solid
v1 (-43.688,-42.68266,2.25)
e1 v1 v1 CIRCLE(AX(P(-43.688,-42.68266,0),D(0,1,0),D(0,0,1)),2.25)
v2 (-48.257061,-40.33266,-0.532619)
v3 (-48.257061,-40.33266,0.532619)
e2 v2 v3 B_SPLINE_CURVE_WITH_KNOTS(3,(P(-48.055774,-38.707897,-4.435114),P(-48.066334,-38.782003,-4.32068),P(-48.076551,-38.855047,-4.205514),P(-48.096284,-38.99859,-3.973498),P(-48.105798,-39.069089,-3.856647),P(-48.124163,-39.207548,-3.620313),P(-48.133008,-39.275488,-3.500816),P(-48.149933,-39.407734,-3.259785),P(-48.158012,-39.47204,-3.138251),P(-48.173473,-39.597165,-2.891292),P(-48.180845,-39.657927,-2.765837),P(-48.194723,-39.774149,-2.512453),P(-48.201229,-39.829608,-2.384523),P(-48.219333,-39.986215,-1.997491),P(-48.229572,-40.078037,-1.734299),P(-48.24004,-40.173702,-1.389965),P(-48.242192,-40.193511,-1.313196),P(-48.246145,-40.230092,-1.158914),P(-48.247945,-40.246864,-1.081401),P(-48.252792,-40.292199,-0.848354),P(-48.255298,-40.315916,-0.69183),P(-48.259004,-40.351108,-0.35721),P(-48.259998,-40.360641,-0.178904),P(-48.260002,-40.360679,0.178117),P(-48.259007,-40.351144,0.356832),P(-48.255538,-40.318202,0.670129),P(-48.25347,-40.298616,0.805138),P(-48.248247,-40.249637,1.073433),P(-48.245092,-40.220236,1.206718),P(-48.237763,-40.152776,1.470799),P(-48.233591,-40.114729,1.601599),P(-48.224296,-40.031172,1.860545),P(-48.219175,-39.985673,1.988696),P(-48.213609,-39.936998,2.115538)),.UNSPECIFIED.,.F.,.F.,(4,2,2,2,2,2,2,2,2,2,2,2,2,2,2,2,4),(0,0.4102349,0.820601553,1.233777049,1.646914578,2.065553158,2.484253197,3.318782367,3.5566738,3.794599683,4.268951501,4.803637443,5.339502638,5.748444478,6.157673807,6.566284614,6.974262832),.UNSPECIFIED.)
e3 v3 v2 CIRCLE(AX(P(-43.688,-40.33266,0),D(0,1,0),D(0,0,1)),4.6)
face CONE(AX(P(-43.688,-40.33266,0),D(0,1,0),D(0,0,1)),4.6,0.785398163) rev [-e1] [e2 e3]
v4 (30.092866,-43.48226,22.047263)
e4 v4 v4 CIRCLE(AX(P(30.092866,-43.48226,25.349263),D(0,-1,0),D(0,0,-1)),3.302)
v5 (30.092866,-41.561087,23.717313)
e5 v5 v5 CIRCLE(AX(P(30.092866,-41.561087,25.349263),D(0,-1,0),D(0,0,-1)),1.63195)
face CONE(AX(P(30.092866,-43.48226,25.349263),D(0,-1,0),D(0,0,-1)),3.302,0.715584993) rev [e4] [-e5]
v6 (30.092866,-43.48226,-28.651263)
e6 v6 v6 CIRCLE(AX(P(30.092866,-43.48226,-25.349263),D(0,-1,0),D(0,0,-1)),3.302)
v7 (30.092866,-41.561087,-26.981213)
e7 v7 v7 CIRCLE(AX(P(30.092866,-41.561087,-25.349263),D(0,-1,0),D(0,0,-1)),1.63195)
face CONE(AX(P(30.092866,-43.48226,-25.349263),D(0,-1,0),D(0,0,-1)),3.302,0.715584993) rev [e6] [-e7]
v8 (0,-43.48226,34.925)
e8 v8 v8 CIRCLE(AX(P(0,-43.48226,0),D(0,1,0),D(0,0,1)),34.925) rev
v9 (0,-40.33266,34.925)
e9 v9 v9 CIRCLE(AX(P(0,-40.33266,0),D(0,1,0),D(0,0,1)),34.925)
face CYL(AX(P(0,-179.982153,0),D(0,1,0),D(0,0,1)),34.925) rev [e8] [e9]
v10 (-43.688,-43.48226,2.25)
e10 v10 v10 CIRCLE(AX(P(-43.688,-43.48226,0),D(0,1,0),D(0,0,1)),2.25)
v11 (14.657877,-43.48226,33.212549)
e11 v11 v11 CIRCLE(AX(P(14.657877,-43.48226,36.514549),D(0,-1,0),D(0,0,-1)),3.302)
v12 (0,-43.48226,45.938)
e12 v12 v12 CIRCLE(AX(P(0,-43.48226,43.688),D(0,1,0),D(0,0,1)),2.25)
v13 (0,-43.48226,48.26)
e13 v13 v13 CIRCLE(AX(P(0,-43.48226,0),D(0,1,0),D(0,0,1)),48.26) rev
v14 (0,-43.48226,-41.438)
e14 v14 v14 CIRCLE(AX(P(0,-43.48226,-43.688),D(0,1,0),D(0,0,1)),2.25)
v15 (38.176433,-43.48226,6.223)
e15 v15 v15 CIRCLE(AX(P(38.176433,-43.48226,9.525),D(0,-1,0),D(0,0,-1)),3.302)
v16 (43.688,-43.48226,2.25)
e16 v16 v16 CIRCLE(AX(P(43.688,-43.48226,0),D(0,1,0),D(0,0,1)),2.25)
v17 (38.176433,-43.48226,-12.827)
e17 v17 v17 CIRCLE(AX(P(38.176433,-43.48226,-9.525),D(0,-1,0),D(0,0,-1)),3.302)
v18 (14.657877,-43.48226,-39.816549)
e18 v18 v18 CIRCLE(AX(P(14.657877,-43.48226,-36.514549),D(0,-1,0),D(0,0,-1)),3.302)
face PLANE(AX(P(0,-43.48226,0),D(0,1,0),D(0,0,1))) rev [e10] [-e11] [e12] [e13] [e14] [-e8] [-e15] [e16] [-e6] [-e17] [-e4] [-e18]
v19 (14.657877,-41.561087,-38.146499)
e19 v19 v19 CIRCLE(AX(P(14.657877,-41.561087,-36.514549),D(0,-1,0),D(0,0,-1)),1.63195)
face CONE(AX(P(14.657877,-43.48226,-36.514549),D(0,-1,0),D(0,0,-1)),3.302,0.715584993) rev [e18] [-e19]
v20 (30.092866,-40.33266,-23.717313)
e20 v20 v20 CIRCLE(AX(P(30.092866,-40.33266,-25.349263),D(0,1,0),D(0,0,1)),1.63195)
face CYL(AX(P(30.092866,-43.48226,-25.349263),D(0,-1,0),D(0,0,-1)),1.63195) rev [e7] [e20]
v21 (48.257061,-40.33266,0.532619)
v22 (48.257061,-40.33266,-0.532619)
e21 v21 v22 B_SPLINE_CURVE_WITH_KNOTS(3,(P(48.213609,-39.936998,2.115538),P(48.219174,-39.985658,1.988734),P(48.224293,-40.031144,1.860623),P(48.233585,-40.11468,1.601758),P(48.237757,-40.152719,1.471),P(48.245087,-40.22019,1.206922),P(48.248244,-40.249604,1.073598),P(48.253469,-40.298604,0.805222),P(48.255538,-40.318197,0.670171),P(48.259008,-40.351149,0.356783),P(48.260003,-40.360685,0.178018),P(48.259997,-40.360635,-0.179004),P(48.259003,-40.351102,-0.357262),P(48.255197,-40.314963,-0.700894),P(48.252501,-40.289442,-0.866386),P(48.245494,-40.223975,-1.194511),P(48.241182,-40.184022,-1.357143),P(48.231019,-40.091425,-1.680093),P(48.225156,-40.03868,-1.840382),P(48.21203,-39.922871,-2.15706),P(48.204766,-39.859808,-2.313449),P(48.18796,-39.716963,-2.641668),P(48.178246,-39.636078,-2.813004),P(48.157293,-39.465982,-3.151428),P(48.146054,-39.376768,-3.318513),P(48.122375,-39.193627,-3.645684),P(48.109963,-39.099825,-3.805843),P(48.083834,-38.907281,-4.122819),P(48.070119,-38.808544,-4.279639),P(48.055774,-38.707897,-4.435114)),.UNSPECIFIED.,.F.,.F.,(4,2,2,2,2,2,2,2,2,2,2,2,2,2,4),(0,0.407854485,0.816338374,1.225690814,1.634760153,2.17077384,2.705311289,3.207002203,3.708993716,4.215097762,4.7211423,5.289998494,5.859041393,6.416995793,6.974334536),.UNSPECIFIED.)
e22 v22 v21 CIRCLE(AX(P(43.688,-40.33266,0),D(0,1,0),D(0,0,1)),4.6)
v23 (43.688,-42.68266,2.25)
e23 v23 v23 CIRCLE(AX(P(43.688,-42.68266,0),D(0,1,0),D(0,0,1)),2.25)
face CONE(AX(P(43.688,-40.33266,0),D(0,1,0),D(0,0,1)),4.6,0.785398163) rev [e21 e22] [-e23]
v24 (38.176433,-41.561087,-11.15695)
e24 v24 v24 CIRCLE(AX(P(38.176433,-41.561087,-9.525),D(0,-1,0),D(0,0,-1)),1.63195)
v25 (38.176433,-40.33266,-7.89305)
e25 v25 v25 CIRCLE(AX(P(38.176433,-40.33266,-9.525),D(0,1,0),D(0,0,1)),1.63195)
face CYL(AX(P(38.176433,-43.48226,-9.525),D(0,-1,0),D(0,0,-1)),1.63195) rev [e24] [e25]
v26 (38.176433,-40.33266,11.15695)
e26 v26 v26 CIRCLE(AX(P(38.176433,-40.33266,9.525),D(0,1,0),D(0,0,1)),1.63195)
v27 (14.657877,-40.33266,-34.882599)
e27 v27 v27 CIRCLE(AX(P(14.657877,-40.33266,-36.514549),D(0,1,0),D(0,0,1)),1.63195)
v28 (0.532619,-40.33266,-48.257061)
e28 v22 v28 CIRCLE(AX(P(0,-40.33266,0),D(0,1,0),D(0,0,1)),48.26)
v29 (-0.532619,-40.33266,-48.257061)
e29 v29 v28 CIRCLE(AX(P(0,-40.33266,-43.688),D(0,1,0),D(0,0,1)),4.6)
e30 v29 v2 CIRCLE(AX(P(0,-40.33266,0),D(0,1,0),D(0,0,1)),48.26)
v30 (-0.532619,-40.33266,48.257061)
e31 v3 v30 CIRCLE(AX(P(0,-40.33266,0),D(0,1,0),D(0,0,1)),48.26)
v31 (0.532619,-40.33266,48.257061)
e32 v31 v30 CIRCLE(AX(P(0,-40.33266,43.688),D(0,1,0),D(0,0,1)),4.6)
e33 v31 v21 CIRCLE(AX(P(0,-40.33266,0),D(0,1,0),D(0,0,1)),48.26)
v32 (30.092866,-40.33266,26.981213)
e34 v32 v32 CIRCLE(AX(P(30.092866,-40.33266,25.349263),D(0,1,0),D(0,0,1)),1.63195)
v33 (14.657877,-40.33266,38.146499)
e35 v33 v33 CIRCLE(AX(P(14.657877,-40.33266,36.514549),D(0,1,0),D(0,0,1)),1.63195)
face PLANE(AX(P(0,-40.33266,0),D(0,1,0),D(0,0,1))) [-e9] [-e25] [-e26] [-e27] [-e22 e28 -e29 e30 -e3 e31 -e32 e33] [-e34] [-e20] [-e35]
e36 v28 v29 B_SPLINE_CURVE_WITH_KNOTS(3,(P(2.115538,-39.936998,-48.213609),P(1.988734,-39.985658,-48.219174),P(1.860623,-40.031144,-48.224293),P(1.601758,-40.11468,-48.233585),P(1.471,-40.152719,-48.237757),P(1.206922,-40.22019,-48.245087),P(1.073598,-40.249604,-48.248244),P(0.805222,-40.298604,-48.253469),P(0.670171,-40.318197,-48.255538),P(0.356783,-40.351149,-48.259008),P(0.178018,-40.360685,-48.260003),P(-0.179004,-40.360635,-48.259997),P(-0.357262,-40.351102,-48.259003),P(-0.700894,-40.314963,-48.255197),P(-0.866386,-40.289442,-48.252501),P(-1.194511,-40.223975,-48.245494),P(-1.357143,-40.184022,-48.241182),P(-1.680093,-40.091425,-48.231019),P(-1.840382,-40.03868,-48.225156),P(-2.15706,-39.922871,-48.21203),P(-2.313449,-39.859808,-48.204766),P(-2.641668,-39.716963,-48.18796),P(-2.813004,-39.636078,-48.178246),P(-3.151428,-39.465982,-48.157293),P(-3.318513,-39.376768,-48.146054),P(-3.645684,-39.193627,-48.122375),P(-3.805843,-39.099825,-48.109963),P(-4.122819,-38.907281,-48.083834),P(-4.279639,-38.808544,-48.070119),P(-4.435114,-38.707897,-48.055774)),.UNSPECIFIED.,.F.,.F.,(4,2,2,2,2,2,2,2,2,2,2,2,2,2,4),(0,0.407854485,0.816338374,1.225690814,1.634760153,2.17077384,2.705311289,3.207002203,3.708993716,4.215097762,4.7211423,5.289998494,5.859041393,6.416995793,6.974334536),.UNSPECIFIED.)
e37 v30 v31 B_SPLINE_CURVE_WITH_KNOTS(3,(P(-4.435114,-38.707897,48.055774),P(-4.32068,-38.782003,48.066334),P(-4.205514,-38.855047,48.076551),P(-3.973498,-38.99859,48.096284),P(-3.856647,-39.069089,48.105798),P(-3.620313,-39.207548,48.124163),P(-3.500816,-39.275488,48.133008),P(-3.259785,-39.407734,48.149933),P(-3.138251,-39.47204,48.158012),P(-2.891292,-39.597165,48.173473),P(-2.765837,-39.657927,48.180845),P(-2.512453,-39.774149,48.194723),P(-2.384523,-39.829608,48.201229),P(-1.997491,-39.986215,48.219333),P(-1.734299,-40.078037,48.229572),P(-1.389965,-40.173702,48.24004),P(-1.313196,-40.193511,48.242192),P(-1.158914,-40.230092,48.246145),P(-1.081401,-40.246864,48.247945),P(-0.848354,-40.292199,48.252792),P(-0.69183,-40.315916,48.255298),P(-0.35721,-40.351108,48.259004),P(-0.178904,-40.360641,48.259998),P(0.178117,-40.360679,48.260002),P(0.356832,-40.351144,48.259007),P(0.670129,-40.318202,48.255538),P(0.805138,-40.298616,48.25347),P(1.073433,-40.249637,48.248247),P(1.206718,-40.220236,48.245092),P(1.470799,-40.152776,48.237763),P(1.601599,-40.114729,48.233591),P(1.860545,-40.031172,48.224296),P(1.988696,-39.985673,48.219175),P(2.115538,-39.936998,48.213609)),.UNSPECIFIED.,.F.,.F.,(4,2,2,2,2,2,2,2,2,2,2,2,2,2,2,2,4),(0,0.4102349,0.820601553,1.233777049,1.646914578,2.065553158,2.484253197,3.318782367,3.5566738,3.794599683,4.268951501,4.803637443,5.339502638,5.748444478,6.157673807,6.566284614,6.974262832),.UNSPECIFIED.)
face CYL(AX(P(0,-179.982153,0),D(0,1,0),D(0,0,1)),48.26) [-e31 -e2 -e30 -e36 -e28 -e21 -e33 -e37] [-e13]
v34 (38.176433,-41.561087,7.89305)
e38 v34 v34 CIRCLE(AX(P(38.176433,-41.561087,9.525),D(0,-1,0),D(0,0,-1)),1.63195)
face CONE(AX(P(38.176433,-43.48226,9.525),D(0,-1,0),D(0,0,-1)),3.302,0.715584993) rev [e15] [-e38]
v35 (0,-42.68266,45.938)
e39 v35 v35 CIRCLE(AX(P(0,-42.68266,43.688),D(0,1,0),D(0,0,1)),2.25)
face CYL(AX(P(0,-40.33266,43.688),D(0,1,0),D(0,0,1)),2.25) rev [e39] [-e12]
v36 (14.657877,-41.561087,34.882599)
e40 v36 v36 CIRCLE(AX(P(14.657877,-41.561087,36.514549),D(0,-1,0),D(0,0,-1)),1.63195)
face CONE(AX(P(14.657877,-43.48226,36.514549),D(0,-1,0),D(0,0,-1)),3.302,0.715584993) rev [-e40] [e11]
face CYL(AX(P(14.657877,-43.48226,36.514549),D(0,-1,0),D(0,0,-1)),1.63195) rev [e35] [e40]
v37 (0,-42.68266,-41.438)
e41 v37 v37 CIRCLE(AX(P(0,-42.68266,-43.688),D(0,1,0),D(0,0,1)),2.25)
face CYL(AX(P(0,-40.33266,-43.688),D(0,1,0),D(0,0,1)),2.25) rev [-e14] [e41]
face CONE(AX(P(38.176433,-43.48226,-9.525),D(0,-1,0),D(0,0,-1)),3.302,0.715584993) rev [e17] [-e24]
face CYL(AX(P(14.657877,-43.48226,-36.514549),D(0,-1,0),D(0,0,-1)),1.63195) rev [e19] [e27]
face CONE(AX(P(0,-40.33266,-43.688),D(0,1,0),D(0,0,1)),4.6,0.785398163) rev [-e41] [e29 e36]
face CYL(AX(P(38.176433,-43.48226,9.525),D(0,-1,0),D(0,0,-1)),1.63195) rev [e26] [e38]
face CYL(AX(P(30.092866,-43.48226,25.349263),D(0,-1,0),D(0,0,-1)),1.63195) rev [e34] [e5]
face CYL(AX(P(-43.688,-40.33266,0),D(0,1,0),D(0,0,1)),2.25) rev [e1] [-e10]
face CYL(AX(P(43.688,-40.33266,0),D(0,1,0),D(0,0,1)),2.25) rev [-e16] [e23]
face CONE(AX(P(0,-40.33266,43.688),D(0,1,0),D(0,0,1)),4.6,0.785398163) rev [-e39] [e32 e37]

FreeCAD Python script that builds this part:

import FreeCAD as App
import Part
import Sketcher
Q = App.Units.Quantity

doc = App.newDocument("Part")
body = doc.addObject("PartDesign::Body", "Body")

# Sketch on XZ plane
sketch1 = body.newObject("Sketcher::SketchObject", "Sketch")
sketch1.AttachmentSupport = (doc.getObject("XZ_Plane"), [""])
sketch1.MapMode = "FlatFace"
sketch1.AttachmentOffset = App.Placement(App.Vector(0, 0, 1.5879 * 25.4), App.Rotation())
sketch1.addGeometry([
    Part.Circle(App.Vector(0, 0, 0), App.Vector(0, 0, 1), 48),
    Part.Circle(App.Vector(0, 0, 0), App.Vector(0, 0, 1), 35),
], False)
sketch1.addConstraint([
    Sketcher.Constraint("Coincident", 0, 3, -1, 1),
    Sketcher.Constraint("Coincident", 1, 3, -1, 1),
    Sketcher.Constraint("Diameter", 0, Q("3.8 in")),
    Sketcher.Constraint("Diameter", 1, Q("2.75 in")),
])
pad1 = body.newObject("PartDesign::Pad", "Pad")
pad1.Profile = sketch1
pad1.Length = Q("0.124 in")

# Sketch on YZ plane
sketch2 = body.newObject("Sketcher::SketchObject", "Sketch001")
sketch2.AttachmentSupport = (doc.getObject("YZ_Plane"), [""])
sketch2.MapMode = "FlatFace"
sketch2.addGeometry([
    Part.LineSegment(App.Vector(-43.5, 43.7, 0), App.Vector(-40.3, 43.7, 0)),  # 0
    Part.LineSegment(App.Vector(-40.3, 43.7, 0), App.Vector(-40.3, 48.3, 0)),  # 1
    Part.LineSegment(App.Vector(-40.3, 48.3, 0), App.Vector(-42.7, 45.9, 0)),  # 2
    Part.LineSegment(App.Vector(-42.7, 45.9, 0), App.Vector(-43.5, 45.9, 0)),  # 3
    Part.LineSegment(App.Vector(-43.5, 45.9, 0), App.Vector(-43.5, 43.7, 0)),  # 4
], False)
sketch2.addGeometry(Part.LineSegment(App.Vector(-40.3, 43.7, 0), App.Vector(-43.5, 43.7, 0)), True)  # axis
sketch2.addConstraint([
    Sketcher.Constraint("Coincident", 0, 2, 1, 1),
    Sketcher.Constraint("Coincident", 1, 2, 2, 1),
    Sketcher.Constraint("Coincident", 2, 2, 3, 1),
    Sketcher.Constraint("Coincident", 3, 2, 4, 1),
    Sketcher.Constraint("Coincident", 4, 2, 0, 1),
    Sketcher.Constraint("Horizontal", 0),
    Sketcher.Constraint("Vertical", 1),
    Sketcher.Constraint("Horizontal", 3),
    Sketcher.Constraint("Vertical", 4),
    Sketcher.Constraint("Horizontal", 5),
    Sketcher.Constraint("Coincident", 5, 1, 0, 2),
    Sketcher.Constraint("Vertical", 3, 2, 5, 2),
    Sketcher.Constraint("Angle", 2, Q("-135 deg")),
    Sketcher.Constraint("DistanceX", 0, 1, 0, 2, Q("0.124 in")),
    Sketcher.Constraint("DistanceY", -1, 1, 0, 2, Q("1.72 in")),
    Sketcher.Constraint("DistanceX", 3, 2, 3, 1, 0.7996),
    Sketcher.Constraint("DistanceY", 1, 1, 1, 2, 4.6),
    Sketcher.Constraint("DistanceX", 0, 2, -1, 1, Q("1.5879 in")),
])
groove = body.newObject("PartDesign::Groove", "Groove")
groove.Profile = sketch2
groove.ReferenceAxis = (sketch2, ["Axis0"])
groove.Angle = 360
doc.recompute()

datumline = body.newObject("PartDesign::Line", "DatumLine")
datumline.Placement = App.Placement(App.Vector(0, 0, 0), App.Rotation(App.Vector(0, 0, 1), App.Vector(0.707106781, 0, -0.707106781)))
linearpattern = body.newObject("PartDesign::LinearPattern", "LinearPattern")
linearpattern.Originals = [groove]
linearpattern.Direction = (datumline, [""])
linearpattern.Mode = "offset"
linearpattern.Offset = 61.784162
linearpattern.Occurrences = 2
body.Tip = linearpattern
doc.recompute()

linearpattern2 = body.newObject("PartDesign::LinearPattern", "LinearPattern001")
linearpattern2.Originals = [groove]
linearpattern2.Direction = (doc.getObject("Z_Axis"), [""])
linearpattern2.Mode = "offset"
linearpattern2.Offset = Q("3.44 in")
linearpattern2.Occurrences = 2
linearpattern2.Reversed = True
body.Tip = linearpattern2
doc.recompute()

datumline2 = body.newObject("PartDesign::Line", "DatumLine001")
datumline2.Placement = App.Placement(App.Vector(0, 0, 0), App.Rotation(App.Vector(0, 0, 1), App.Vector(-0.707106781, 0, -0.707106781)))
linearpattern3 = body.newObject("PartDesign::LinearPattern", "LinearPattern002")
linearpattern3.Originals = [groove]
linearpattern3.Direction = (datumline2, [""])
linearpattern3.Mode = "offset"
linearpattern3.Offset = 61.784162
linearpattern3.Occurrences = 2
body.Tip = linearpattern3

# Sketch on YZ plane
sketch3 = body.newObject("Sketcher::SketchObject", "Sketch002")
sketch3.AttachmentSupport = (doc.getObject("YZ_Plane"), [""])
sketch3.MapMode = "FlatFace"
sketch3.AttachmentOffset = App.Placement(App.Vector(0, 0, 14.657877), App.Rotation())
sketch3.addGeometry([
    Part.LineSegment(App.Vector(-40.3, 36.5, 0), App.Vector(-43.5, 36.5, 0)),  # 0
    Part.LineSegment(App.Vector(-43.5, 36.5, 0), App.Vector(-43.5, 33.2, 0)),  # 1
    Part.LineSegment(App.Vector(-43.5, 33.2, 0), App.Vector(-41.6, 34.9, 0)),  # 2
    Part.LineSegment(App.Vector(-41.6, 34.9, 0), App.Vector(-40.3, 34.9, 0)),  # 3
    Part.LineSegment(App.Vector(-40.3, 34.9, 0), App.Vector(-40.3, 36.5, 0)),  # 4
], False)
sketch3.addGeometry(Part.LineSegment(App.Vector(-43.5, 36.5, 0), App.Vector(-40.3, 36.5, 0)), True)  # axis
sketch3.addConstraint([
    Sketcher.Constraint("Coincident", 0, 2, 1, 1),
    Sketcher.Constraint("Coincident", 1, 2, 2, 1),
    Sketcher.Constraint("Coincident", 2, 2, 3, 1),
    Sketcher.Constraint("Coincident", 3, 2, 4, 1),
    Sketcher.Constraint("Coincident", 4, 2, 0, 1),
    Sketcher.Constraint("Horizontal", 0),
    Sketcher.Constraint("Vertical", 1),
    Sketcher.Constraint("Horizontal", 3),
    Sketcher.Constraint("Vertical", 4),
    Sketcher.Constraint("Horizontal", 5),
    Sketcher.Constraint("Coincident", 5, 1, 0, 2),
    Sketcher.Constraint("Vertical", 3, 2, 5, 2),
    Sketcher.Constraint("Angle", 2, Q("41 deg")),
    Sketcher.Constraint("DistanceY", 1, 2, 1, 1, Q("0.13 in")),
    Sketcher.Constraint("DistanceX", 0, 2, 0, 1, Q("0.124 in")),
    Sketcher.Constraint("DistanceX", 0, 2, -1, 1, Q("1.7119 in")),
    Sketcher.Constraint("DistanceY", 4, 1, 4, 2, 1.63195),
    Sketcher.Constraint("DistanceY", -1, 1, 2, 2, 34.882599),
])
groove2 = body.newObject("PartDesign::Groove", "Groove001")
groove2.Profile = sketch3
groove2.ReferenceAxis = (sketch3, ["Axis0"])
groove2.Angle = 360
doc.recompute()

datumline3 = body.newObject("PartDesign::Line", "DatumLine002")
datumline3.Placement = App.Placement(App.Vector(0, 0, 0), App.Rotation(App.Vector(0, 0, 1), App.Vector(0.810235621, 0, -0.58610429)))
linearpattern4 = body.newObject("PartDesign::LinearPattern", "LinearPattern003")
linearpattern4.Originals = [groove2]
linearpattern4.Direction = (datumline3, [""])
linearpattern4.Mode = "offset"
linearpattern4.Offset = Q("0.75 in")
linearpattern4.Occurrences = 2
body.Tip = linearpattern4
doc.recompute()

datumline4 = body.newObject("PartDesign::Line", "DatumLine003")
datumline4.Placement = App.Placement(App.Vector(0, 0, 0), App.Rotation(App.Vector(0, 0, 1), App.Vector(0.65696386, 0, -0.753922069)))
linearpattern5 = body.newObject("PartDesign::LinearPattern", "LinearPattern004")
linearpattern5.Originals = [groove2]
linearpattern5.Direction = (datumline4, [""])
linearpattern5.Mode = "offset"
linearpattern5.Offset = 35.798858
linearpattern5.Occurrences = 2
body.Tip = linearpattern5
doc.recompute()

datumline5 = body.newObject("PartDesign::Line", "DatumLine004")
datumline5.Placement = App.Placement(App.Vector(0, 0, 0), App.Rotation(App.Vector(0, 0, 1), App.Vector(0.454915217, 0, -0.890534752)))
linearpattern6 = body.newObject("PartDesign::LinearPattern", "LinearPattern005")
linearpattern6.Originals = [groove2]
linearpattern6.Direction = (datumline5, [""])
linearpattern6.Mode = "offset"
linearpattern6.Offset = 51.698768
linearpattern6.Occurrences = 2
body.Tip = linearpattern6
doc.recompute()

datumline6 = body.newObject("PartDesign::Line", "DatumLine005")
datumline6.Placement = App.Placement(App.Vector(0, 0, 0), App.Rotation(App.Vector(0, 0, 1), App.Vector(0.242078526, 0, -0.97025666)))
linearpattern7 = body.newObject("PartDesign::LinearPattern", "LinearPattern006")
linearpattern7.Originals = [groove2]
linearpattern7.Direction = (datumline6, [""])
linearpattern7.Mode = "offset"
linearpattern7.Offset = 63.760255
linearpattern7.Occurrences = 2
body.Tip = linearpattern7
doc.recompute()

linearpattern8 = body.newObject("PartDesign::LinearPattern", "LinearPattern007")
linearpattern8.Originals = [groove2]
linearpattern8.Direction = (doc.getObject("Z_Axis"), [""])
linearpattern8.Mode = "offset"
linearpattern8.Offset = 73.029099
linearpattern8.Occurrences = 2
linearpattern8.Reversed = True
body.Tip = linearpattern8

doc.recompute()
